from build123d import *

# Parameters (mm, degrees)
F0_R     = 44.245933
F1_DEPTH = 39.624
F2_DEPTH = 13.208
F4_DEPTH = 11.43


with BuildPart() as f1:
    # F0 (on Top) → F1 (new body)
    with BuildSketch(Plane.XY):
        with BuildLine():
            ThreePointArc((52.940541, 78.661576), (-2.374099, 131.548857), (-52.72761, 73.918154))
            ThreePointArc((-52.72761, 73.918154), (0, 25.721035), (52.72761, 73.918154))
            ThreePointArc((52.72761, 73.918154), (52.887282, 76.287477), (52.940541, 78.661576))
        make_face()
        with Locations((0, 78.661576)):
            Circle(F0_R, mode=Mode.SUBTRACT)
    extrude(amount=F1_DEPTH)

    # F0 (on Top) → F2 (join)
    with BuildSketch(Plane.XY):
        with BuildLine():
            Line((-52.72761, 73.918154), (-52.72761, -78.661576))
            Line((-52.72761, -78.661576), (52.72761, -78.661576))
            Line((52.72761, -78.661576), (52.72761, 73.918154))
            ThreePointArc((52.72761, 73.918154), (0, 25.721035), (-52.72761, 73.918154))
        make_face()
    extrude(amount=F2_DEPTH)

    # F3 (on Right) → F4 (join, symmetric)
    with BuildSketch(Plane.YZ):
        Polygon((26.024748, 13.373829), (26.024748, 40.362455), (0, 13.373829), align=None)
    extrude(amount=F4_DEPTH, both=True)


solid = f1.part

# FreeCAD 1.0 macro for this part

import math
import FreeCAD as App
import Part
import Sketcher
from FreeCAD import Vector
Q = App.Units.Quantity


def add_polygon(sketch, points):
    """Adds a closed chain of lines whose ends are joined by coincident constraints."""
    first, n = sketch.GeometryCount, len(points)
    for a, b in zip(points, points[1:] + points[:1]):
        sketch.addGeometry(Part.LineSegment(App.Vector(*a, 0), App.Vector(*b, 0)), False)
    for i in range(n):
        sketch.addConstraint(Sketcher.Constraint("Coincident", first + i, 2, first + (i + 1) % n, 1))

doc = App.newDocument("Part")
body = doc.addObject("PartDesign::Body", "Body")

# Sketch on XY plane
sketch1 = doc.addObject("Sketcher::SketchObject", "Sketch")
body.addObject(sketch1)
sketch1.AttachmentSupport = (doc.XY_Plane, [""])
sketch1.MapMode = "FlatFace"
sketch1.addGeometry(Part.ArcOfCircle(Part.Circle(Vector(0, 78.7, 0), Vector(0, 0, 1), 52.9), math.radians(0), math.radians(185)), False)
sketch1.addGeometry(Part.ArcOfCircle(Part.Circle(Vector(0, 78.7, 0), Vector(0, 0, 1), 52.9), math.radians(-175), math.radians(-5)), False)
sketch1.addGeometry(Part.ArcOfCircle(Part.Circle(Vector(0, 78.7, 0), Vector(0, 0, 1), 52.9), math.radians(-5.14), math.radians(0)), False)
sketch1.addGeometry(Part.Circle(Vector(0, 78.7, 0), Vector(0, 0, 1), 44.2), False)
sketch1.addConstraint(Sketcher.Constraint("Tangent", 0, 2, 1, 1))
sketch1.addConstraint(Sketcher.Constraint("Tangent", 1, 2, 2, 1))
sketch1.addConstraint(Sketcher.Constraint("Coincident", 2, 2, 0, 1))
sketch1.addConstraint(Sketcher.Constraint("Coincident", 3, 3, 0, 3))
sketch1.addConstraint(Sketcher.Constraint("Symmetric", 0, 2, 1, 2, -2))
sketch1.addConstraint(Sketcher.Constraint("Horizontal", 3, 3, 2, 2))
sketch1.addConstraint(Sketcher.Constraint("Radius", 0, 52.940541))
sketch1.addConstraint(Sketcher.Constraint("Diameter", 3, 88.491866))
sketch1.addConstraint(Sketcher.Constraint("Radius", 2, 52.940087))
sketch1.addConstraint(Sketcher.Constraint("DistanceY", 0, 2, 2, 3, 4.743399))
sketch1.addConstraint(Sketcher.Constraint("DistanceY", -1, 1, 0, 3, 78.661575))
pad1 = doc.addObject("PartDesign::Pad", "Pad")
body.addObject(pad1)
pad1.Profile = sketch1
pad1.Length = Q("1.56 in")

# Sketch on XY plane
sketch2 = doc.addObject("Sketcher::SketchObject", "Sketch001")
body.addObject(sketch2)
sketch2.AttachmentSupport = (doc.XY_Plane, [""])
sketch2.MapMode = "FlatFace"
sketch2.addGeometry(Part.LineSegment(Vector(-53, 74, 0), Vector(-53, -79, 0)), False)
sketch2.addGeometry(Part.LineSegment(Vector(-53, -79, 0), Vector(53, -79, 0)), False)
sketch2.addGeometry(Part.LineSegment(Vector(53, -79, 0), Vector(53, 74, 0)), False)
sketch2.addGeometry(Part.ArcOfCircle(Part.Circle(Vector(0, 79, 0), Vector(0, 0, 1), 53), math.radians(-175), math.radians(-5)), False)
sketch2.addConstraint(Sketcher.Constraint("Coincident", 0, 2, 1, 1))
sketch2.addConstraint(Sketcher.Constraint("Coincident", 1, 2, 2, 1))
sketch2.addConstraint(Sketcher.Constraint("Coincident", 2, 2, 3, 2))
sketch2.addConstraint(Sketcher.Constraint("Coincident", 3, 1, 0, 1))
sketch2.addConstraint(Sketcher.Constraint("Vertical", 0))
sketch2.addConstraint(Sketcher.Constraint("Horizontal", 1))
sketch2.addConstraint(Sketcher.Constraint("Vertical", 2))
sketch2.addConstraint(Sketcher.Constraint("Symmetric", 2, 2, 3, 1, -2))
sketch2.addConstraint(Sketcher.Constraint("Radius", 3, 52.940541))
sketch2.addConstraint(Sketcher.Constraint("DistanceX", 1, 1, 1, 2, 105.45522))
sketch2.addConstraint(Sketcher.Constraint("DistanceY", 0, 2, 0, 1, 152.57973))
sketch2.addConstraint(Sketcher.Constraint("DistanceY", -1, 1, 3, 3, 78.661576))
pad2 = doc.addObject("PartDesign::Pad", "Pad001")
body.addObject(pad2)
pad2.Profile = sketch2
pad2.Length = Q("0.52 in")

# Sketch on YZ plane
sketch3 = doc.addObject("Sketcher::SketchObject", "Sketch002")
body.addObject(sketch3)
sketch3.AttachmentSupport = (doc.YZ_Plane, [""])
sketch3.MapMode = "FlatFace"
add_polygon(sketch3, [(26, 13), (26, 40), (0, 13)])  # lines 0-2
sketch3.addConstraint(Sketcher.Constraint("Vertical", 0))
sketch3.addConstraint(Sketcher.Constraint("Horizontal", 2))
sketch3.addConstraint(Sketcher.Constraint("PointOnObject", 1, 2, -2))
sketch3.addConstraint(Sketcher.Constraint("Distance", 1, 37.492312))
sketch3.addConstraint(Sketcher.Constraint("DistanceX", 2, 1, 2, 2, 26.024748))
sketch3.addConstraint(Sketcher.Constraint("DistanceY", -1, 1, 1, 2, 13.373829))
pad3 = doc.addObject("PartDesign::Pad", "Pad002")
body.addObject(pad3)
pad3.Profile = sketch3
pad3.Length = Q("0.9 in")
pad3.Midplane = True

doc.recompute()
